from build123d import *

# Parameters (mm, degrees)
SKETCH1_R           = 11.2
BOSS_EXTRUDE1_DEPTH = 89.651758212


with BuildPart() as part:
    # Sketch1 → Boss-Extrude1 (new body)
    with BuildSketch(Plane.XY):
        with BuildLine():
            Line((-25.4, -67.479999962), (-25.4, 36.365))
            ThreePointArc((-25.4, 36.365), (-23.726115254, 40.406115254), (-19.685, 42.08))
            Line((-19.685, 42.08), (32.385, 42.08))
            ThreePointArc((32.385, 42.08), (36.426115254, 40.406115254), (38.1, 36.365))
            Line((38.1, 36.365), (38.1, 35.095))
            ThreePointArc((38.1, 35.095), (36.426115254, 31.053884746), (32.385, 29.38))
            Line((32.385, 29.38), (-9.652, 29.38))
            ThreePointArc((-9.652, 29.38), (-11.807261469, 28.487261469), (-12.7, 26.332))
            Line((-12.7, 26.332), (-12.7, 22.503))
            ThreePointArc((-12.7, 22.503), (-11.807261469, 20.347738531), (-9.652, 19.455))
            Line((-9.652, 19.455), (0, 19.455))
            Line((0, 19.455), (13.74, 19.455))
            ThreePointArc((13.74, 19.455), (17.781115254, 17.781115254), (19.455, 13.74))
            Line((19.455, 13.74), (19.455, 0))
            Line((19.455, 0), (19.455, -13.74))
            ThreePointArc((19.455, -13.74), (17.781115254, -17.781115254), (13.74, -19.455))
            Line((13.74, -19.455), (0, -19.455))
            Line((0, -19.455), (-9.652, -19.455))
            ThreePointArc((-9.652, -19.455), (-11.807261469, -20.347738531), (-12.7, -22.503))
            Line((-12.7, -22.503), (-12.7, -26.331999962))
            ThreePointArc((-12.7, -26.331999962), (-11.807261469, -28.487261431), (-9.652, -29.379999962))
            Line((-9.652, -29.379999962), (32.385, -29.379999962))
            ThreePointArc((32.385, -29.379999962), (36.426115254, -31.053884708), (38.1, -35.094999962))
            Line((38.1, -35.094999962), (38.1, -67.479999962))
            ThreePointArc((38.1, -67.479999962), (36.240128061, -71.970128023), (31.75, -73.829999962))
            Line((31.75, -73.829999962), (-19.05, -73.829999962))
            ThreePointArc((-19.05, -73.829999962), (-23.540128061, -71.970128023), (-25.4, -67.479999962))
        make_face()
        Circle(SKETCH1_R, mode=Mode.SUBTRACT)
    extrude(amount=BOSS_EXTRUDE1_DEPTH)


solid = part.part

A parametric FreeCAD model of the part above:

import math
import FreeCAD as App
import Part
import Sketcher
Q = App.Units.Quantity

doc = App.newDocument("Part")
params = doc.addObject("Spreadsheet::Sheet", "Params")
for row, (alias, value) in enumerate([
    ("sketch1_width", "2 in"),
    ("sketch1_radius", "0.25 in"),
    ("sketch1_radius2", "0.12 in"),
    ("sketch1_radius3", "0.225 in"),
    ("sketch1_height", "0.05 in"),
    ("pad1_length", "89.651758 mm"),
], start=1):
    params.set(f"A{row}", alias)
    params.set(f"B{row}", "=" + value)
    params.setAlias(f"B{row}", alias)

body = doc.addObject("PartDesign::Body", "Body")

# Sketch on XY plane
sketch1 = body.newObject("Sketcher::SketchObject", "Sketch")
sketch1.AttachmentSupport = (doc.getObject("XY_Plane"), [""])
sketch1.MapMode = "FlatFace"
sketch1.addGeometry([
    Part.LineSegment(App.Vector(-25.4, 36.365, 0), App.Vector(-25.4, -67.48, 0)),  # 0
    Part.ArcOfCircle(Part.Circle(App.Vector(-19.05, -67.48, 0), App.Vector(0, 0, 1), 6.35), math.radians(180), math.radians(270)),  # 1
    Part.LineSegment(App.Vector(-19.05, -73.83, 0), App.Vector(31.75, -73.83, 0)),  # 2
    Part.ArcOfCircle(Part.Circle(App.Vector(31.75, -67.48, 0), App.Vector(0, 0, 1), 6.35), math.radians(-90), math.radians(0)),  # 3
    Part.LineSegment(App.Vector(38.1, -67.48, 0), App.Vector(38.1, -35.095, 0)),  # 4
    Part.ArcOfCircle(Part.Circle(App.Vector(32.385, -35.095, 0), App.Vector(0, 0, 1), 5.715), math.radians(0), math.radians(90)),  # 5
    Part.LineSegment(App.Vector(32.385, -29.38, 0), App.Vector(-9.652, -29.38, 0)),  # 6
    Part.ArcOfCircle(Part.Circle(App.Vector(-9.652, -26.332, 0), App.Vector(0, 0, 1), 3.048), math.radians(180), math.radians(270)),  # 7
    Part.LineSegment(App.Vector(-12.7, -26.332, 0), App.Vector(-12.7, -22.503, 0)),  # 8
    Part.ArcOfCircle(Part.Circle(App.Vector(-9.652, -22.503, 0), App.Vector(0, 0, 1), 3.048), math.radians(90), math.radians(180)),  # 9
    Part.LineSegment(App.Vector(-9.652, -19.455, 0), App.Vector(13.74, -19.455, 0)),  # 10
    Part.ArcOfCircle(Part.Circle(App.Vector(13.74, -13.74, 0), App.Vector(0, 0, 1), 5.715), math.radians(-90), math.radians(0)),  # 11
    Part.LineSegment(App.Vector(19.455, -13.74, 0), App.Vector(19.455, 13.74, 0)),  # 12
    Part.ArcOfCircle(Part.Circle(App.Vector(13.74, 13.74, 0), App.Vector(0, 0, 1), 5.715), math.radians(0), math.radians(90)),  # 13
    Part.LineSegment(App.Vector(13.74, 19.455, 0), App.Vector(-9.652, 19.455, 0)),  # 14
    Part.ArcOfCircle(Part.Circle(App.Vector(-9.652, 22.503, 0), App.Vector(0, 0, 1), 3.048), math.radians(180), math.radians(270)),  # 15
    Part.LineSegment(App.Vector(-12.7, 22.503, 0), App.Vector(-12.7, 26.332, 0)),  # 16
    Part.ArcOfCircle(Part.Circle(App.Vector(-9.652, 26.332, 0), App.Vector(0, 0, 1), 3.048), math.radians(90), math.radians(180)),  # 17
    Part.LineSegment(App.Vector(-9.652, 29.38, 0), App.Vector(32.385, 29.38, 0)),  # 18
    Part.ArcOfCircle(Part.Circle(App.Vector(32.385, 35.095, 0), App.Vector(0, 0, 1), 5.715), math.radians(-90), math.radians(0)),  # 19
    Part.LineSegment(App.Vector(38.1, 35.095, 0), App.Vector(38.1, 36.365, 0)),  # 20
    Part.ArcOfCircle(Part.Circle(App.Vector(32.385, 36.365, 0), App.Vector(0, 0, 1), 5.715), math.radians(0), math.radians(90)),  # 21
    Part.LineSegment(App.Vector(32.385, 42.08, 0), App.Vector(-19.685, 42.08, 0)),  # 22
    Part.ArcOfCircle(Part.Circle(App.Vector(-19.685, 36.365, 0), App.Vector(0, 0, 1), 5.715), math.radians(90), math.radians(180)),  # 23
    Part.Circle(App.Vector(0, 0, 0), App.Vector(0, 0, 1), 11.2),  # 24
], False)
sketch1.addConstraint([
    Sketcher.Constraint("Tangent", 0, 2, 1, 1),
    Sketcher.Constraint("Tangent", 1, 2, 2, 1),
    Sketcher.Constraint("Tangent", 2, 2, 3, 1),
    Sketcher.Constraint("Tangent", 3, 2, 4, 1),
    Sketcher.Constraint("Tangent", 4, 2, 5, 1),
    Sketcher.Constraint("Tangent", 5, 2, 6, 1),
    Sketcher.Constraint("Tangent", 6, 2, 7, 2),
    Sketcher.Constraint("Tangent", 7, 1, 8, 1),
    Sketcher.Constraint("Tangent", 8, 2, 9, 2),
    Sketcher.Constraint("Tangent", 9, 1, 10, 1),
    Sketcher.Constraint("Tangent", 10, 2, 11, 1),
    Sketcher.Constraint("Tangent", 11, 2, 12, 1),
    Sketcher.Constraint("Tangent", 12, 2, 13, 1),
    Sketcher.Constraint("Tangent", 13, 2, 14, 1),
    Sketcher.Constraint("Tangent", 14, 2, 15, 2),
    Sketcher.Constraint("Tangent", 15, 1, 16, 1),
    Sketcher.Constraint("Tangent", 16, 2, 17, 2),
    Sketcher.Constraint("Tangent", 17, 1, 18, 1),
    Sketcher.Constraint("Tangent", 18, 2, 19, 1),
    Sketcher.Constraint("Tangent", 19, 2, 20, 1),
    Sketcher.Constraint("Tangent", 20, 2, 21, 1),
    Sketcher.Constraint("Tangent", 21, 2, 22, 1),
    Sketcher.Constraint("Tangent", 22, 2, 23, 1),
    Sketcher.Constraint("Tangent", 23, 2, 0, 1),
    Sketcher.Constraint("Vertical", 0),
    Sketcher.Constraint("Horizontal", 2),
    Sketcher.Constraint("Vertical", 4),
    Sketcher.Constraint("Horizontal", 6),
    Sketcher.Constraint("Vertical", 8),
    Sketcher.Constraint("Horizontal", 10),
    Sketcher.Constraint("Vertical", 12),
    Sketcher.Constraint("Horizontal", 14),
    Sketcher.Constraint("Vertical", 16),
    Sketcher.Constraint("Horizontal", 18),
    Sketcher.Constraint("Vertical", 20),
    Sketcher.Constraint("Horizontal", 22),
    Sketcher.Constraint("Coincident", 24, 3, -1, 1),
    Sketcher.Constraint("Equal", 1, 3),
    Sketcher.Constraint("Equal", 7, 9),
    Sketcher.Constraint("Equal", 5, 11),
    Sketcher.Constraint("Equal", 11, 13),
    Sketcher.Constraint("Equal", 9, 15),
    Sketcher.Constraint("Equal", 15, 17),
    Sketcher.Constraint("Equal", 13, 19),
    Sketcher.Constraint("Equal", 19, 21),
    Sketcher.Constraint("Equal", 21, 23),
    Sketcher.Constraint("Symmetric", 9, 3, 15, 3, -1),
    Sketcher.Constraint("Symmetric", 5, 3, 19, 3, -1),
    Sketcher.Constraint("DistanceX", 2, 1, 2, 2, Q("2 in")),
    Sketcher.Constraint("Radius", 1, Q("0.25 in")),
    Sketcher.Constraint("Radius", 7, Q("0.12 in")),
    Sketcher.Constraint("DistanceX", 0, 2, -1, 1, Q("1 in")),
    Sketcher.Constraint("Radius", 5, Q("0.225 in")),
    Sketcher.Constraint("DistanceY", 20, 1, 20, 2, Q("0.05 in")),
    Sketcher.Constraint("DistanceX", 7, 1, -1, 1, Q("0.5 in")),
    Sketcher.Constraint("DistanceY", 3, 3, 5, 2, Q("1.5 in")),
    Sketcher.Constraint("Diameter", 24, 22.4),
    Sketcher.Constraint("DistanceX", 10, 1, 10, 2, 23.392),
    Sketcher.Constraint("DistanceY", 0, 2, 0, 1, 103.845),
    Sketcher.Constraint("DistanceY", 8, 1, 8, 2, 3.829),
])
sketch1.setExpression("Constraints[48]", "Params.sketch1_width")
sketch1.setExpression("Constraints[49]", "Params.sketch1_radius")
sketch1.setExpression("Constraints[50]", "Params.sketch1_radius2")
sketch1.setExpression("Constraints[52]", "Params.sketch1_radius3")
sketch1.setExpression("Constraints[53]", "Params.sketch1_height")
pad1 = body.newObject("PartDesign::Pad", "Pad")
pad1.Profile = sketch1
pad1.setExpression("Length", "Params.pad1_length")

doc.recompute()
